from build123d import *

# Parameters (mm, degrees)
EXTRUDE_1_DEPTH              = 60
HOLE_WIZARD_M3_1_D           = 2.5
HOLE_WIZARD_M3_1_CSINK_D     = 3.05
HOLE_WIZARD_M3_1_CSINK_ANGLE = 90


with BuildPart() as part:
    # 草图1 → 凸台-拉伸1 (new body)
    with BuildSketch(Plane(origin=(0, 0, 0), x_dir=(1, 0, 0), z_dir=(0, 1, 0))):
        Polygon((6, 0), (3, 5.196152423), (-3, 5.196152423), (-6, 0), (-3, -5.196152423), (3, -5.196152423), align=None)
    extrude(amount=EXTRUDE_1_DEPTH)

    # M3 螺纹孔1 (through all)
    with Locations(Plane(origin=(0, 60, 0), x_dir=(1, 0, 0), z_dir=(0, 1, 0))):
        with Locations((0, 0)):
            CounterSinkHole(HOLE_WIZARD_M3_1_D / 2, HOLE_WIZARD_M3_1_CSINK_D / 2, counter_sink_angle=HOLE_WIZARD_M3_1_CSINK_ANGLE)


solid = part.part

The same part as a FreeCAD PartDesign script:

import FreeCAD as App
import Part
import Sketcher
from FreeCAD import Vector
Q = App.Units.Quantity


def add_polygon(sketch, points):
    """Adds a closed chain of lines whose ends are joined by coincident constraints."""
    first, n = sketch.GeometryCount, len(points)
    for a, b in zip(points, points[1:] + points[:1]):
        sketch.addGeometry(Part.LineSegment(App.Vector(*a, 0), App.Vector(*b, 0)), False)
    for i in range(n):
        sketch.addConstraint(Sketcher.Constraint("Coincident", first + i, 2, first + (i + 1) % n, 1))

doc = App.newDocument("Part")
body = doc.addObject("PartDesign::Body", "Body")

sketch1 = body.newObject("Sketcher::SketchObject", "Sketch")
sketch1.AttachmentSupport = (doc.getObject("XZ_Plane"), [""])
sketch1.MapMode = "FlatFace"
add_polygon(sketch1, [(6, 0), (3, -5.196152), (-3, -5.196152), (-6, 0), (-3, 5.196152), (3, 5.196152)])
sketch1.addConstraint(Sketcher.Constraint("Horizontal", 1))
sketch1.addConstraint(Sketcher.Constraint("Horizontal", 4))
sketch1.addConstraint(Sketcher.Constraint("Symmetric", 0, 2, 3, 2, -1, 1))
sketch1.addConstraint(Sketcher.Constraint("Symmetric", 2, 2, 5, 2, -1, 1))
sketch1.addConstraint(Sketcher.Constraint("PointOnObject", 2, 2, -1))
sketch1.addConstraint(Sketcher.Constraint("Parallel", 2, 5))
sketch1.addConstraint(Sketcher.Constraint("Vertical", 1, 2, 3, 2))
sketch1.addConstraint(Sketcher.Constraint("DistanceX", 1, 2, 1, 1, Q("6 mm")))
sketch1.addConstraint(Sketcher.Constraint("Angle", 0, Q("-120 deg")))
sketch1.addConstraint(Sketcher.Constraint("Distance", 0, Q("6 mm")))
pad1 = body.newObject("PartDesign::Pad", "Pad")
pad1.Profile = sketch1
pad1.Length = 60
pad1.Reversed = True

sketch2 = body.newObject("Sketcher::SketchObject", "Sketch001")
sketch2.AttachmentSupport = (doc.getObject("XZ_Plane"), [""])
sketch2.MapMode = "FlatFace"
sketch2.AttachmentOffset = App.Placement(Vector(0, 0, -60), App.Rotation())
sketch2.addGeometry(Part.Circle(Vector(0, 0, 0), Vector(0, 0, 1), 1.25), False)
sketch2.addConstraint(Sketcher.Constraint("Coincident", 0, 3, -1, 1))
sketch2.addConstraint(Sketcher.Constraint("Diameter", 0, Q("2.5 mm")))
doc.recompute()
hole = body.newObject("PartDesign::Hole", "Hole")
hole.Profile = sketch2
hole.ThreadType = "None"
hole.Diameter = 2.5
hole.DepthType = "ThroughAll"
hole.HoleCutType = "Countersink"
hole.HoleCutDiameter = 3.05
hole.HoleCutCountersinkAngle = 90
hole.Reversed = True

doc.recompute()
